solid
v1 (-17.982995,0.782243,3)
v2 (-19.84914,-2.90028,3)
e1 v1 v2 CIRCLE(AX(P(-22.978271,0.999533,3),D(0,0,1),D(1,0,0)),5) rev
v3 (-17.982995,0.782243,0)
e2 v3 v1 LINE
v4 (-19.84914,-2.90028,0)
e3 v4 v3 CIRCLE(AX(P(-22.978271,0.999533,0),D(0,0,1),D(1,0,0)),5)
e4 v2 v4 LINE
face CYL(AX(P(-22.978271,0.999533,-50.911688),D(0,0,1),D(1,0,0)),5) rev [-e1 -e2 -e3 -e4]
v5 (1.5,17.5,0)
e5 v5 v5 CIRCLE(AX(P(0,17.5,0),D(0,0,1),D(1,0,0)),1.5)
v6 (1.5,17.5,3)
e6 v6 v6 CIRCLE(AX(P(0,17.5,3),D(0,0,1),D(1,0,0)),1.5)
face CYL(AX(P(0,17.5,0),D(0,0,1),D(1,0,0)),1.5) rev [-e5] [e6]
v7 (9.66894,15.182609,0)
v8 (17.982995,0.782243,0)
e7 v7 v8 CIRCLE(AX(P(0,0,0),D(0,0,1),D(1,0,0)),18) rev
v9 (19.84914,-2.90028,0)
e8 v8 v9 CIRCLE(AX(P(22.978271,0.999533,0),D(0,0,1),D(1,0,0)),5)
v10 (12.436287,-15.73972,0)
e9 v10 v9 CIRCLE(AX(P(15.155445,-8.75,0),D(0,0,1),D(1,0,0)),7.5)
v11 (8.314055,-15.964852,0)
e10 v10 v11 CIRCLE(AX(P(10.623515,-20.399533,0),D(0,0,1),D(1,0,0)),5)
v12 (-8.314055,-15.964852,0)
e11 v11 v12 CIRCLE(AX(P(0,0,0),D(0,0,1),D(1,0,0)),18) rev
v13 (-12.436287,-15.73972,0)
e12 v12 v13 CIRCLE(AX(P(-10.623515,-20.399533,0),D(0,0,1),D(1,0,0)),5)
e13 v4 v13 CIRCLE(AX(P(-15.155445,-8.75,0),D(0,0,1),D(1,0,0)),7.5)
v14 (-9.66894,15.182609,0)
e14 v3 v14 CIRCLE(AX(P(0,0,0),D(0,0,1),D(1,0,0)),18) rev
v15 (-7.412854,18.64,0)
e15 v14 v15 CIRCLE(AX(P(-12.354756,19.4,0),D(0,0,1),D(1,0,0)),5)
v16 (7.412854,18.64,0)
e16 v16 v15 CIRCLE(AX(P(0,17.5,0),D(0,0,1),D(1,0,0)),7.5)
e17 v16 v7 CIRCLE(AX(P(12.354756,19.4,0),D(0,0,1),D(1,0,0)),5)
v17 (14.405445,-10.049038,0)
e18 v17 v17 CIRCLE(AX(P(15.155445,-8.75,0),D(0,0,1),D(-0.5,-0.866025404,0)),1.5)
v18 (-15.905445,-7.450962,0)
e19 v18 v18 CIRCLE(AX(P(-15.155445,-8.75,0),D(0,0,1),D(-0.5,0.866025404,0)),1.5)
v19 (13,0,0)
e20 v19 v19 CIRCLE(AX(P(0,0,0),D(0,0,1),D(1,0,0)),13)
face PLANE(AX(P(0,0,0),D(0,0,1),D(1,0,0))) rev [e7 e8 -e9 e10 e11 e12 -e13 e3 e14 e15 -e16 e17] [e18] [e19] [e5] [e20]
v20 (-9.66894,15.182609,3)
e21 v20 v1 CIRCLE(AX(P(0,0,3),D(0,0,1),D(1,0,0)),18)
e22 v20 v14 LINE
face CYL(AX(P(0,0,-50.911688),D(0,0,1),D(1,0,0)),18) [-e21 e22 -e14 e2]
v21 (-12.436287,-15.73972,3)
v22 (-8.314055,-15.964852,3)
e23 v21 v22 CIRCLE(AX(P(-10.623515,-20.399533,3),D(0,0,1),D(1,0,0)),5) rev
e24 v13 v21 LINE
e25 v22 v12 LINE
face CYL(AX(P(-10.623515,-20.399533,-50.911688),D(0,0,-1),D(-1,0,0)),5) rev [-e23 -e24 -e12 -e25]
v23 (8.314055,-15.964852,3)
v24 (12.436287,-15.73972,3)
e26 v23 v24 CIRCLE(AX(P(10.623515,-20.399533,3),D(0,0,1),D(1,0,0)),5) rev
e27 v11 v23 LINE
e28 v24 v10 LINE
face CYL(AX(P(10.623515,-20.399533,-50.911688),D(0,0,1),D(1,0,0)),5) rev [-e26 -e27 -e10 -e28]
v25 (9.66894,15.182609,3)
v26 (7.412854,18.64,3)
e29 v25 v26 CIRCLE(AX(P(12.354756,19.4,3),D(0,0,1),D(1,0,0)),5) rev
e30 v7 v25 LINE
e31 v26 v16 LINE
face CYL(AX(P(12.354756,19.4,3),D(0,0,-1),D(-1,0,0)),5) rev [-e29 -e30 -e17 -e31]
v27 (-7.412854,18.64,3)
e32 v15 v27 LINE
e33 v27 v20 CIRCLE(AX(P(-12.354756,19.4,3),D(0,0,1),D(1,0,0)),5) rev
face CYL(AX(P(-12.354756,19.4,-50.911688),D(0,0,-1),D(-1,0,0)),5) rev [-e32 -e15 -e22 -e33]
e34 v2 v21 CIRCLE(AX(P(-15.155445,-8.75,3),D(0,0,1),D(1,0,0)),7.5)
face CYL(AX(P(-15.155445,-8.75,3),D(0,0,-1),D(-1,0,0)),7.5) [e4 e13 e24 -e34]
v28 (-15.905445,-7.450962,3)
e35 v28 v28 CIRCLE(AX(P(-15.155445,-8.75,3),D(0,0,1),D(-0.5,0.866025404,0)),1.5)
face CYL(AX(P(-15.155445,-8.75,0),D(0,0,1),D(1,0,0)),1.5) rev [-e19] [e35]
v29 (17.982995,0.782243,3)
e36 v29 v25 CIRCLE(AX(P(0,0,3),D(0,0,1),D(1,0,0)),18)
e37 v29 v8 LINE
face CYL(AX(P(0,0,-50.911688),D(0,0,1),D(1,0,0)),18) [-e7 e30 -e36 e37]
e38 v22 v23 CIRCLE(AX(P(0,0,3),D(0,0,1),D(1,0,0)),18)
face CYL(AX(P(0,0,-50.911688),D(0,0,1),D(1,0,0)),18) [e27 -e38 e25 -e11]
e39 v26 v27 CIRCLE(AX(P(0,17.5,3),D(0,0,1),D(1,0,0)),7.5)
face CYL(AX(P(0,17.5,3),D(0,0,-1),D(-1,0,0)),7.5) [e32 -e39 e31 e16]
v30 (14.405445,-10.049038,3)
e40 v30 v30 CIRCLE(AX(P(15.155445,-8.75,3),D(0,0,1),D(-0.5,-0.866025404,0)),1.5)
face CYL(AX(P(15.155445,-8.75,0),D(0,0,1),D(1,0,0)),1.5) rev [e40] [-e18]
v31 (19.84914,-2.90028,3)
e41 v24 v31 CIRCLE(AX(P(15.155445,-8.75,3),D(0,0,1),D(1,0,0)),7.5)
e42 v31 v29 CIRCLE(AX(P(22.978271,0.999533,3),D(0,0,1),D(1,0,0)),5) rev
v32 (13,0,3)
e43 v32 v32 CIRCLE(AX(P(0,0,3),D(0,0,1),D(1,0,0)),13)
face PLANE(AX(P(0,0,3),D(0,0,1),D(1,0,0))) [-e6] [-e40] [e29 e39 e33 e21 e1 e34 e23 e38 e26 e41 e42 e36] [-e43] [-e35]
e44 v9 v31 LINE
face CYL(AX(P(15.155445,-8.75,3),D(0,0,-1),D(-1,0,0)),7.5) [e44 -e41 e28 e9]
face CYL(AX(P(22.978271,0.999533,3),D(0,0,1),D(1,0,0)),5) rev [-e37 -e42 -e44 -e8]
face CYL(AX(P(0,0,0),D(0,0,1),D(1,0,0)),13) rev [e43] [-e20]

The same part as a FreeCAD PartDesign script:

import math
import FreeCAD as App
import Part
import Sketcher

V = App.Vector
Q = App.Units.Quantity


def edges_at(feature, points):
    """Names of the edges that pass closest to the given points."""
    edges = feature.Shape.Edges
    near = lambda p: min(range(len(edges)), key=lambda i: edges[i].distToShape(Part.Vertex(*p))[0])
    return sorted({f"Edge{near(p) + 1}" for p in points})

doc = App.newDocument("Part")
body = doc.addObject("PartDesign::Body", "Body")

sketch1 = body.newObject("Sketcher::SketchObject", "Sketch")
sketch1.AttachmentSupport = (doc.getObject("XY_Plane"), [""])
sketch1.MapMode = "FlatFace"
sketch1.addGeometry(Part.ArcOfCircle(Part.Circle(V(15, -9, 0), V(0, 0, 1), 8), math.radians(-120), math.radians(60)), False)
sketch1.addGeometry(Part.ArcOfCircle(Part.Circle(V(30, 18, 0), V(0, 0, 1), 23), math.radians(-180), math.radians(-120)), False)
sketch1.addGeometry(Part.ArcOfCircle(Part.Circle(V(0, 18, 0), V(0, 0, 1), 8), math.radians(0), math.radians(180)), False)
sketch1.addGeometry(Part.ArcOfCircle(Part.Circle(V(-30, 18, 0), V(0, 0, 1), 23), math.radians(-60), math.radians(0)), False)
sketch1.addGeometry(Part.ArcOfCircle(Part.Circle(V(-15, -9, 0), V(0, 0, 1), 8), math.radians(120), math.radians(300)), False)
sketch1.addGeometry(Part.ArcOfCircle(Part.Circle(V(0, -35, 0), V(0, 0, 1), 23), math.radians(60), math.radians(120)), False)
sketch1.addGeometry(Part.Circle(V(0, 0, 0), V(0, 0, 1), 9), False)
sketch1.addConstraint(Sketcher.Constraint("Tangent", 0, 2, 1, 2))
sketch1.addConstraint(Sketcher.Constraint("Tangent", 1, 1, 2, 1))
sketch1.addConstraint(Sketcher.Constraint("Tangent", 2, 2, 3, 2))
sketch1.addConstraint(Sketcher.Constraint("Tangent", 3, 1, 4, 1))
sketch1.addConstraint(Sketcher.Constraint("Tangent", 4, 2, 5, 2))
sketch1.addConstraint(Sketcher.Constraint("Tangent", 5, 1, 0, 1))
sketch1.addConstraint(Sketcher.Constraint("Coincident", 6, 3, -1, 1))
sketch1.addConstraint(Sketcher.Constraint("Equal", 0, 2))
sketch1.addConstraint(Sketcher.Constraint("Equal", 1, 3))
sketch1.addConstraint(Sketcher.Constraint("Equal", 2, 4))
sketch1.addConstraint(Sketcher.Constraint("Equal", 3, 5))
sketch1.addConstraint(Sketcher.Constraint("Symmetric", 1, 3, 3, 3, -2))
sketch1.addConstraint(Sketcher.Constraint("Horizontal", 1, 3, 2, 3))
sketch1.addConstraint(Sketcher.Constraint("Horizontal", 0, 3, 4, 3))
sketch1.addConstraint(Sketcher.Constraint("Diameter", 6, Q("17.5 mm")))
sketch1.addConstraint(Sketcher.Constraint("Radius", 0, Q("7.5 mm")))
sketch1.addConstraint(Sketcher.Constraint("DistanceY", 5, 3, -1, 1, Q("35 mm")))
sketch1.addConstraint(Sketcher.Constraint("DistanceY", -1, 1, 1, 3, Q("17.5 mm")))
sketch1.addConstraint(Sketcher.Constraint("DistanceY", 0, 3, -1, 1, Q("8.75 mm")))
pad1 = body.newObject("PartDesign::Pad", "Pad")
pad1.Profile = sketch1
pad1.Length = 3

sketch2 = body.newObject("Sketcher::SketchObject", "Sketch001")
sketch2.AttachmentSupport = (doc.getObject("XY_Plane"), [""])
sketch2.MapMode = "FlatFace"
sketch2.AttachmentOffset = App.Placement(V(0, 0, 3), App.Rotation())
sketch2.addGeometry(Part.Circle(V(0, 17.5, 0), V(0, 0, 1), 1.5), False)
sketch2.addConstraint(Sketcher.Constraint("PointOnObject", 0, 3, -2))
sketch2.addConstraint(Sketcher.Constraint("Diameter", 0, Q("3 mm")))
sketch2.addConstraint(Sketcher.Constraint("DistanceY", -1, 1, 0, 3, Q("17.5 mm")))
pocket1 = body.newObject("PartDesign::Pocket", "Pocket")
pocket1.Profile = sketch2
pocket1.Type = "ThroughAll"
doc.recompute()

polarpattern = body.newObject("PartDesign::PolarPattern", "PolarPattern")
polarpattern.Originals = [pocket1]
polarpattern.Axis = (doc.getObject("Z_Axis"), [""])
polarpattern.Angle = 360
polarpattern.Occurrences = 3
body.Tip = polarpattern

sketch3 = body.newObject("Sketcher::SketchObject", "Sketch002")
sketch3.AttachmentSupport = (doc.getObject("XY_Plane"), [""])
sketch3.MapMode = "FlatFace"
sketch3.AttachmentOffset = App.Placement(V(0, 0, 3), App.Rotation())
sketch3.addGeometry(Part.Circle(V(0, 0, 0), V(0, 0, 1), 18), False)
sketch3.addConstraint(Sketcher.Constraint("Coincident", 0, 3, -1, 1))
sketch3.addConstraint(Sketcher.Constraint("Diameter", 0, Q("36 mm")))
pad2 = body.newObject("PartDesign::Pad", "Pad001")
pad2.Profile = sketch3
pad2.Length = 3
pad2.Reversed = True
doc.recompute()

fillet = body.newObject("PartDesign::Fillet", "Fillet")
fillet.Base = (pad2, edges_at(pad2, [
    (17.924, -1.655, 1.5),
    (7.529, 16.35, 1.5),
    (-7.529, 16.35, 1.5),
    (-17.924, -1.655, 1.5),
    (-10.395, -14.695, 1.5),
    (10.395, -14.695, 1.5),
]))
fillet.Radius = 5

sketch4 = body.newObject("Sketcher::SketchObject", "Sketch003")
sketch4.AttachmentSupport = (doc.getObject("XY_Plane"), [""])
sketch4.MapMode = "FlatFace"
sketch4.AttachmentOffset = App.Placement(V(0, 0, 3), App.Rotation())
sketch4.addGeometry(Part.Circle(V(0, 0, 0), V(0, 0, 1), 13), False)
sketch4.addConstraint(Sketcher.Constraint("Coincident", 0, 3, -1, 1))
sketch4.addConstraint(Sketcher.Constraint("Diameter", 0, Q("26 mm")))
pocket2 = body.newObject("PartDesign::Pocket", "Pocket001")
pocket2.Profile = sketch4
pocket2.Type = "ThroughAll"

sketch5 = body.newObject("Sketcher::SketchObject", "Sketch004")
sketch5.AttachmentSupport = (doc.getObject("XY_Plane"), [""])
sketch5.MapMode = "FlatFace"
sketch5.AttachmentOffset = App.Placement(V(0, 0, 3), App.Rotation())
sketch5.addGeometry(Part.Circle(V(0, 17.5, 0), V(0, 0, 1), 1.5), False)
sketch5.addConstraint(Sketcher.Constraint("PointOnObject", 0, 3, -2))
sketch5.addConstraint(Sketcher.Constraint("Diameter", 0, Q("3 mm")))
sketch5.addConstraint(Sketcher.Constraint("DistanceY", -1, 1, 0, 3, Q("17.5 mm")))
pocket3 = body.newObject("PartDesign::Pocket", "Pocket002")
pocket3.Profile = sketch5
pocket3.Type = "ThroughAll"
doc.recompute()

polarpattern2 = body.newObject("PartDesign::PolarPattern", "PolarPattern001")
polarpattern2.Originals = [pocket1]
polarpattern2.Axis = (doc.getObject("Z_Axis"), [""])
polarpattern2.Angle = 360
polarpattern2.Occurrences = 3
body.Tip = polarpattern2

doc.recompute()
